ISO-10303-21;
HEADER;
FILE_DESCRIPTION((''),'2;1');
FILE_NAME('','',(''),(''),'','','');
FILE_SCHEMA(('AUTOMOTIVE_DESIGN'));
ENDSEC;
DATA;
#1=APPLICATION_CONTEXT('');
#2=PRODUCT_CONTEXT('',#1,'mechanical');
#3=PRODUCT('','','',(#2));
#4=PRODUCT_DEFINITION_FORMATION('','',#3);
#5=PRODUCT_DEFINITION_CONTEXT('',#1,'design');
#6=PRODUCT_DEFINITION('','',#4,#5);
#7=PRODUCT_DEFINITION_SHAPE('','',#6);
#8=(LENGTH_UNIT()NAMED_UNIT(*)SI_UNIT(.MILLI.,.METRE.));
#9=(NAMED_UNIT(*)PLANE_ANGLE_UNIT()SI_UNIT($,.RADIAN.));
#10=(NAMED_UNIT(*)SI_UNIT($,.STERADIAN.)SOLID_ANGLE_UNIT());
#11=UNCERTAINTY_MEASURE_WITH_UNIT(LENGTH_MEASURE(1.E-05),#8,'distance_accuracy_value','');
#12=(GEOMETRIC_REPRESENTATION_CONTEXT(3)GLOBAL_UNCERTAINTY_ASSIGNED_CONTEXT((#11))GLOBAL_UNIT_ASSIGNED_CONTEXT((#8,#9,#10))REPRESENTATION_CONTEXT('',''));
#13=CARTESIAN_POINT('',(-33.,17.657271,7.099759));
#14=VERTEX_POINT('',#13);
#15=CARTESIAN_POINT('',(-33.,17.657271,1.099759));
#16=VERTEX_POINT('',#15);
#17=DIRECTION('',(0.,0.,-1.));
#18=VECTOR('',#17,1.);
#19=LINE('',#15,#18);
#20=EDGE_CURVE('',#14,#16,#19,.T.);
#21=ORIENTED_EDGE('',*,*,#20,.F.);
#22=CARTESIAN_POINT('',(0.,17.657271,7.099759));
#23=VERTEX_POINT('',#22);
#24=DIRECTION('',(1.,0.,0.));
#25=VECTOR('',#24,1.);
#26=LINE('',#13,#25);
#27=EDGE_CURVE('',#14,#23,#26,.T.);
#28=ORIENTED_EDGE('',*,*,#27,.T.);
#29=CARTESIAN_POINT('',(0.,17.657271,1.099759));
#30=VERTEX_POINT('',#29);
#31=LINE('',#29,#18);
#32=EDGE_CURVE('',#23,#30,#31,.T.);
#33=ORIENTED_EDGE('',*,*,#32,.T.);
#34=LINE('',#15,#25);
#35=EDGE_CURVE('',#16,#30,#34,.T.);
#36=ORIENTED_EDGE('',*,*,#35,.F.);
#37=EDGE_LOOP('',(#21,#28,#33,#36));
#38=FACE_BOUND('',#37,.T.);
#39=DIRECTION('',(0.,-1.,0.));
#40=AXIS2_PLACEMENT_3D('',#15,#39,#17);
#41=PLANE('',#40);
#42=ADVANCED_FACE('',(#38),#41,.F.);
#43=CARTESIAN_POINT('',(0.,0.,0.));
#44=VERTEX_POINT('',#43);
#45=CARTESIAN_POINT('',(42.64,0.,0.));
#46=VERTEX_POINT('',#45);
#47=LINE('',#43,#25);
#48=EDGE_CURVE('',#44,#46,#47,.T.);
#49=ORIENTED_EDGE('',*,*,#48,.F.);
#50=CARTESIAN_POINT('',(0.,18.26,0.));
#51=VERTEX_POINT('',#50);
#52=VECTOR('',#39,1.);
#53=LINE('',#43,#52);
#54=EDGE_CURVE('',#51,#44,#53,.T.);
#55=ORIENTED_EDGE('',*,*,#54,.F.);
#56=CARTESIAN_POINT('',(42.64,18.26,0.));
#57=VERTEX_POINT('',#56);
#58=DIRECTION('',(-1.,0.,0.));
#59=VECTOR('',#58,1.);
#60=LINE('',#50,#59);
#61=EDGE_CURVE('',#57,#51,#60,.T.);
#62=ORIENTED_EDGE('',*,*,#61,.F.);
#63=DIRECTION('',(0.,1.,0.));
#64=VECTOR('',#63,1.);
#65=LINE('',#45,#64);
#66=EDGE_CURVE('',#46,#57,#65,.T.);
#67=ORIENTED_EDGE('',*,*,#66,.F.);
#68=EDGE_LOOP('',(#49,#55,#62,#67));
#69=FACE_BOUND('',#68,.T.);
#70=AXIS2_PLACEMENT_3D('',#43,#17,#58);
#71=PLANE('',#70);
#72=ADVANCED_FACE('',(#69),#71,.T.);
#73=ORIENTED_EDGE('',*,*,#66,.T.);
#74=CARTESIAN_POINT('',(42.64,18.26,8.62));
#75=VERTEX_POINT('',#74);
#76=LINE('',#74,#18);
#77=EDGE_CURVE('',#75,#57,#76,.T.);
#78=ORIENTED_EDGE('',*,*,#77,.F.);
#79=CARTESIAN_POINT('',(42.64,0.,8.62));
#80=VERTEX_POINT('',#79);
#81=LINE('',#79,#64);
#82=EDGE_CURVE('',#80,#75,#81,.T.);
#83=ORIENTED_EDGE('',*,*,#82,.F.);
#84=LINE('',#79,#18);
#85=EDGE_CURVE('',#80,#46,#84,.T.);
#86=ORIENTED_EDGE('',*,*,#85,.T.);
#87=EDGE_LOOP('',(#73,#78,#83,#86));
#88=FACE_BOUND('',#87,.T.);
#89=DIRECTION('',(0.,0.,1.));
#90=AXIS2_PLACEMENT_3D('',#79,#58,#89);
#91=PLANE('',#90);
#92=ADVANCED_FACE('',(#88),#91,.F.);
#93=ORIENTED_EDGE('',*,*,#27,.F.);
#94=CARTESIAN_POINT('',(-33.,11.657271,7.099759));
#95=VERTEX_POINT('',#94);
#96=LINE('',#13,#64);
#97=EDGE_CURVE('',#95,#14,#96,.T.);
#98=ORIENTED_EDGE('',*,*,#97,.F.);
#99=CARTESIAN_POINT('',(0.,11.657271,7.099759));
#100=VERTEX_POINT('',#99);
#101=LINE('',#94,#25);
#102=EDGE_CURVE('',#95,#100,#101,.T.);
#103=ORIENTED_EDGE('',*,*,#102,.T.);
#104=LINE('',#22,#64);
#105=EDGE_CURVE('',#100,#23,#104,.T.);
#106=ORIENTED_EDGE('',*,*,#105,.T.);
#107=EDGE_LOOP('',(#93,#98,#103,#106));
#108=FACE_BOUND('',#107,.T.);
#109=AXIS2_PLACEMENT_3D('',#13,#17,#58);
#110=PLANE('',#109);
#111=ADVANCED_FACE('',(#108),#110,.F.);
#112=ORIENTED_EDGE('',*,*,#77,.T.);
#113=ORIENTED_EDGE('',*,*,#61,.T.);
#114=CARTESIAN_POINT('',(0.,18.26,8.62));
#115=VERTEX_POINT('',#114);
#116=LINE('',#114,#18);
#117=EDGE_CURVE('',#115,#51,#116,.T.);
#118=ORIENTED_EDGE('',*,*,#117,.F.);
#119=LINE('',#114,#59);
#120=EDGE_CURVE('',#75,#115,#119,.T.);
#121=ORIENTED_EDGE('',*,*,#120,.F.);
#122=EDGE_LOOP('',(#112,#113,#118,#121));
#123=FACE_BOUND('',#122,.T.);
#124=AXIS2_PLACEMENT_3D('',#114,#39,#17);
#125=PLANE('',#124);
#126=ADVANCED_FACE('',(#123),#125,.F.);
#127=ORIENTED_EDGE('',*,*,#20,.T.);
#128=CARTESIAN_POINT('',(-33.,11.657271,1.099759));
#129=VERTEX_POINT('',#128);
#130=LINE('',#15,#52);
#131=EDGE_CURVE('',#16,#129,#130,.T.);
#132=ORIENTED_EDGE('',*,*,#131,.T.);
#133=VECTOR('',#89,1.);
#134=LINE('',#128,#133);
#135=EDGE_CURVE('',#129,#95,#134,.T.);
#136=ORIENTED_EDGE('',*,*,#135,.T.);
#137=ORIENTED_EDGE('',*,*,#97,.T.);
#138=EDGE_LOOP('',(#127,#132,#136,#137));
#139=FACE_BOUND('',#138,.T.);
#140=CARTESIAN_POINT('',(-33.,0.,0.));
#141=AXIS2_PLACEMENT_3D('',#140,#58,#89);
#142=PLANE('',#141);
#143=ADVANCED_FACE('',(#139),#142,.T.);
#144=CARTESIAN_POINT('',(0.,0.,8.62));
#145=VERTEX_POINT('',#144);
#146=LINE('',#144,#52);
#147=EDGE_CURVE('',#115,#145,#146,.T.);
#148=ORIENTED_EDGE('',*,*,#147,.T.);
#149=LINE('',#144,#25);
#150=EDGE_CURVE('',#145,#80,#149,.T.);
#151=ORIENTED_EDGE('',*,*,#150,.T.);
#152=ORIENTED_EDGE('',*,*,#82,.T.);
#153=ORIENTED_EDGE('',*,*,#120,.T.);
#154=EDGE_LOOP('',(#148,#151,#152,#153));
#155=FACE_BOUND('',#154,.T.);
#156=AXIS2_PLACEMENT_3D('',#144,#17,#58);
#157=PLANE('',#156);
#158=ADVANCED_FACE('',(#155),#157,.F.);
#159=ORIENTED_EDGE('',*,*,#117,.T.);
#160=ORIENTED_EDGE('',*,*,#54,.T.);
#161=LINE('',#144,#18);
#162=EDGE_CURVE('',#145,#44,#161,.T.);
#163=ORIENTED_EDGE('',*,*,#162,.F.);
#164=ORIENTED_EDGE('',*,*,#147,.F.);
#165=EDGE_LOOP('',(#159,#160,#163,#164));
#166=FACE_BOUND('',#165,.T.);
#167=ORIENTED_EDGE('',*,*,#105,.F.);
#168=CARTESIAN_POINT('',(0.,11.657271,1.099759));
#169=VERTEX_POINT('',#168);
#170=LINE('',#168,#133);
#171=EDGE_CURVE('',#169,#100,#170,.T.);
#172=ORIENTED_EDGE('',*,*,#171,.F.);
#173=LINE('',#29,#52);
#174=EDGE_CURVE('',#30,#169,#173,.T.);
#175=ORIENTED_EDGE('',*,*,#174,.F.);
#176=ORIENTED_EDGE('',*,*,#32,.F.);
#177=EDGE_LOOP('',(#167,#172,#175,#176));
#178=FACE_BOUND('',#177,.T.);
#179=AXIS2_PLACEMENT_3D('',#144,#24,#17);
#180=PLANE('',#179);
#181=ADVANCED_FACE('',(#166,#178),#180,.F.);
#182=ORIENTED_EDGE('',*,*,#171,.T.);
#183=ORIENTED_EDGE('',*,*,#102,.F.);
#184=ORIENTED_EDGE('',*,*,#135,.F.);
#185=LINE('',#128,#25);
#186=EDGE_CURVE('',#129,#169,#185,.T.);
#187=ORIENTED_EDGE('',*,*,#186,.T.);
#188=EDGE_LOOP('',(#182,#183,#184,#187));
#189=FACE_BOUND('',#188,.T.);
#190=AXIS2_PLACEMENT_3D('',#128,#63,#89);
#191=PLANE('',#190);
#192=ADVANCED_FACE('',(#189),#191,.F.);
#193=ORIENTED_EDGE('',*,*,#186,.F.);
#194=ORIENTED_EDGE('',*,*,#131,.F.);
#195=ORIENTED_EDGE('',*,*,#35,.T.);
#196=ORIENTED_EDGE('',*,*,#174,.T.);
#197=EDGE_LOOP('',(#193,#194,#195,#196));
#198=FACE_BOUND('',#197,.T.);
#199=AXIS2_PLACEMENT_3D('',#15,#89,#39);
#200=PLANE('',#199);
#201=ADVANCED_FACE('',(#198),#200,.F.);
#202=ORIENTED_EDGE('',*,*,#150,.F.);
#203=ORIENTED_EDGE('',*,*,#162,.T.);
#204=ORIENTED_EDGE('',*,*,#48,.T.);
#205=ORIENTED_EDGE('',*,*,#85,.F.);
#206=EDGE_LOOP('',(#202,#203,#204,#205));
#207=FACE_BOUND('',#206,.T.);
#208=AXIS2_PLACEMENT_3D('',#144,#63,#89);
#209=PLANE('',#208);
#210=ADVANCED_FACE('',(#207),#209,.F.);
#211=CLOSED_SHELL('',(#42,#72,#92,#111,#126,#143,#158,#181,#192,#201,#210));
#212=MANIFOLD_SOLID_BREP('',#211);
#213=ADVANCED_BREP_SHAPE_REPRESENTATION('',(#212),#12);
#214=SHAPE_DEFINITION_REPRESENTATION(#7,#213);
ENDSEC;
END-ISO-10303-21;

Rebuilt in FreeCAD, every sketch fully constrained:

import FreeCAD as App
import Part
import Sketcher
from FreeCAD import Vector

doc = App.newDocument("Part")
body = doc.addObject("PartDesign::Body", "Body")

sketch1 = body.newObject("Sketcher::SketchObject", "Sketch")
sketch1.AttachmentSupport = (doc.getObject("XY_Plane"), [""])
sketch1.MapMode = "FlatFace"
sketch1.addGeometry([
    Part.LineSegment(Vector(0, 18.26, 0), Vector(0, 0, 0)),
    Part.LineSegment(Vector(0, 0, 0), Vector(42.64, 0, 0)),
    Part.LineSegment(Vector(42.64, 0, 0), Vector(42.64, 18.26, 0)),
    Part.LineSegment(Vector(42.64, 18.26, 0), Vector(0, 18.26, 0)),
], False)
sketch1.addConstraint([
    Sketcher.Constraint("Coincident", 0, 2, 1, 1),
    Sketcher.Constraint("Coincident", 1, 2, 2, 1),
    Sketcher.Constraint("Coincident", 2, 2, 3, 1),
    Sketcher.Constraint("Coincident", 3, 2, 0, 1),
    Sketcher.Constraint("Vertical", 0),
    Sketcher.Constraint("Horizontal", 1),
    Sketcher.Constraint("Vertical", 2),
    Sketcher.Constraint("Horizontal", 3),
    Sketcher.Constraint("Coincident", 0, 2, -1, 1),
    Sketcher.Constraint("DistanceX", 1, 1, 1, 2, 42.64),
    Sketcher.Constraint("DistanceY", 0, 2, 0, 1, 18.26),
])
pad1 = body.newObject("PartDesign::Pad", "Pad")
pad1.Profile = sketch1
pad1.Length = 8.62

sketch2 = body.newObject("Sketcher::SketchObject", "Sketch001")
sketch2.AttachmentSupport = (doc.getObject("YZ_Plane"), [""])
sketch2.MapMode = "FlatFace"
sketch2.addGeometry([
    Part.LineSegment(Vector(17.657271, 1.099759, 0), Vector(11.657271, 1.099759, 0)),
    Part.LineSegment(Vector(11.657271, 1.099759, 0), Vector(11.657271, 7.099759, 0)),
    Part.LineSegment(Vector(11.657271, 7.099759, 0), Vector(17.657271, 7.099759, 0)),
    Part.LineSegment(Vector(17.657271, 7.099759, 0), Vector(17.657271, 1.099759, 0)),
], False)
sketch2.addConstraint([
    Sketcher.Constraint("Coincident", 0, 2, 1, 1),
    Sketcher.Constraint("Coincident", 1, 2, 2, 1),
    Sketcher.Constraint("Coincident", 2, 2, 3, 1),
    Sketcher.Constraint("Coincident", 3, 2, 0, 1),
    Sketcher.Constraint("Horizontal", 0),
    Sketcher.Constraint("Vertical", 1),
    Sketcher.Constraint("Horizontal", 2),
    Sketcher.Constraint("Vertical", 3),
    Sketcher.Constraint("Equal", 2, 1),
    Sketcher.Constraint("DistanceX", 0, 2, 0, 1, 6.0),
    Sketcher.Constraint("DistanceX", -1, 1, 0, 2, 11.657271),
    Sketcher.Constraint("DistanceY", -1, 1, 0, 2, 1.099759),
])
pad2 = body.newObject("PartDesign::Pad", "Pad001")
pad2.Profile = sketch2
pad2.Length = 33
pad2.Reversed = True

doc.recompute()
